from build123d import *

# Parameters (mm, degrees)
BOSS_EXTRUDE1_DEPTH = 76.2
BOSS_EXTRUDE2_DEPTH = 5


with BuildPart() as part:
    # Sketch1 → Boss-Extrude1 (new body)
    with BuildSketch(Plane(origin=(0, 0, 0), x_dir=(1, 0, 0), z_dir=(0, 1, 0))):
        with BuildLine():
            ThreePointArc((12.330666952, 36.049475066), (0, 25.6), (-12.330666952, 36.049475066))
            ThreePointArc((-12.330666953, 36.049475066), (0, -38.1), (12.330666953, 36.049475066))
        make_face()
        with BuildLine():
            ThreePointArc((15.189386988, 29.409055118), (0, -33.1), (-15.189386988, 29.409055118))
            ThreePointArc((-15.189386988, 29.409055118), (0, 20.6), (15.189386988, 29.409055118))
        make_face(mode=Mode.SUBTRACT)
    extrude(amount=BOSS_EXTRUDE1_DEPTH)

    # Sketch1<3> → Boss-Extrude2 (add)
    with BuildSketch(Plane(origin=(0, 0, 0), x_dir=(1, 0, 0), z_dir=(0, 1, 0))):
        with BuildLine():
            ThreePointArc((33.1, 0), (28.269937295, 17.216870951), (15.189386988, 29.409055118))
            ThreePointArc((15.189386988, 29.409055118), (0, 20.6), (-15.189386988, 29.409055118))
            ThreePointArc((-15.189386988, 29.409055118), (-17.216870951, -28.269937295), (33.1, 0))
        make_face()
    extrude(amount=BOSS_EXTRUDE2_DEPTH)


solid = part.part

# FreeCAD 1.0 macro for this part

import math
import FreeCAD as App
import Part
import Sketcher
from FreeCAD import Vector
Q = App.Units.Quantity

doc = App.newDocument("Part")
body = doc.addObject("PartDesign::Body", "Body")

sketch1 = doc.addObject("Sketcher::SketchObject", "Sketch")
body.addObject(sketch1)
sketch1.AttachmentSupport = (doc.XZ_Plane, [""])
sketch1.MapMode = "FlatFace"
sketch1.addGeometry(Part.ArcOfCircle(Part.Circle(Vector(0, -38, 0), Vector(0, 0, 1), 12), math.radians(9), math.radians(171)), False)
sketch1.addGeometry(Part.ArcOfCircle(Part.Circle(Vector(0, 0, 0), Vector(0, 0, 1), 38), math.radians(-71), math.radians(251)), False)
sketch1.addGeometry(Part.ArcOfCircle(Part.Circle(Vector(0, -38, 0), Vector(0, 0, 1), 18), math.radians(30), math.radians(150)), False)
sketch1.addGeometry(Part.ArcOfCircle(Part.Circle(Vector(0, 0, 0), Vector(0, 0, 1), 33), math.radians(-63), math.radians(243)), False)
sketch1.addConstraint(Sketcher.Constraint("Coincident", 0, 1, 1, 1))
sketch1.addConstraint(Sketcher.Constraint("Coincident", 1, 2, 0, 2))
sketch1.addConstraint(Sketcher.Constraint("Coincident", 2, 1, 3, 1))
sketch1.addConstraint(Sketcher.Constraint("Coincident", 3, 2, 2, 2))
sketch1.addConstraint(Sketcher.Constraint("Coincident", 1, 3, -1, 1))
sketch1.addConstraint(Sketcher.Constraint("Coincident", 3, 3, -1, 1))
sketch1.addConstraint(Sketcher.Constraint("Coincident", 2, 3, 0, 3))
sketch1.addConstraint(Sketcher.Constraint("PointOnObject", 0, 3, -2))
sketch1.addConstraint(Sketcher.Constraint("Radius", 0, Q("12.5 mm")))
sketch1.addConstraint(Sketcher.Constraint("Radius", 1, Q("38.1 mm")))
sketch1.addConstraint(Sketcher.Constraint("Radius", 2, Q("17.5 mm")))
sketch1.addConstraint(Sketcher.Constraint("Radius", 3, Q("33.1 mm")))
sketch1.addConstraint(Sketcher.Constraint("DistanceY", 0, 3, -1, 1, Q("38.1 mm")))
pad1 = doc.addObject("PartDesign::Pad", "Pad")
body.addObject(pad1)
pad1.Profile = sketch1
pad1.Length = 76.2
pad1.Reversed = True

sketch2 = doc.addObject("Sketcher::SketchObject", "Sketch001")
body.addObject(sketch2)
sketch2.AttachmentSupport = (doc.XZ_Plane, [""])
sketch2.MapMode = "FlatFace"
sketch2.addGeometry(Part.ArcOfCircle(Part.Circle(Vector(0, 0, 0), Vector(0, 0, 1), 33), math.radians(-63), math.radians(0)), False)
sketch2.addGeometry(Part.ArcOfCircle(Part.Circle(Vector(0, -38, 0), Vector(0, 0, 1), 18), math.radians(30), math.radians(150)), False)
sketch2.addGeometry(Part.ArcOfCircle(Part.Circle(Vector(0, 0, 0), Vector(0, 0, 1), 33), math.radians(0), math.radians(243)), False)
sketch2.addConstraint(Sketcher.Constraint("Coincident", 0, 1, 1, 1))
sketch2.addConstraint(Sketcher.Constraint("Coincident", 1, 2, 2, 2))
sketch2.addConstraint(Sketcher.Constraint("Tangent", 2, 1, 0, 2))
sketch2.addConstraint(Sketcher.Constraint("Coincident", 0, 3, -1, 1))
sketch2.addConstraint(Sketcher.Constraint("Equal", 0, 2))
sketch2.addConstraint(Sketcher.Constraint("PointOnObject", 1, 3, -2))
sketch2.addConstraint(Sketcher.Constraint("PointOnObject", 2, 1, -1))
sketch2.addConstraint(Sketcher.Constraint("Radius", 0, Q("33.1 mm")))
sketch2.addConstraint(Sketcher.Constraint("Radius", 1, Q("17.5 mm")))
sketch2.addConstraint(Sketcher.Constraint("DistanceY", 1, 3, -1, 1, Q("38.1 mm")))
pad2 = doc.addObject("PartDesign::Pad", "Pad001")
body.addObject(pad2)
pad2.Profile = sketch2
pad2.Length = 5
pad2.Reversed = True

doc.recompute()
